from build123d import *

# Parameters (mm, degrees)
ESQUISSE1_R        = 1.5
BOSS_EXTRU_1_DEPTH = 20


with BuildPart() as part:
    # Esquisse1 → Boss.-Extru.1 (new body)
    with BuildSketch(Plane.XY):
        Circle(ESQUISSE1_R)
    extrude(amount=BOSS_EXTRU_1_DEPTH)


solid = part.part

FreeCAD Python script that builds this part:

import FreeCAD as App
import Part
import Sketcher

V = App.Vector

doc = App.newDocument("Part")
params = doc.addObject("Spreadsheet::Sheet", "Params")
for row, (alias, value) in enumerate([
    ("sketch1_diameter", "3 mm"),
    ("pad1_length", "20 mm"),
], start=1):
    params.set(f"A{row}", alias)
    params.set(f"B{row}", "=" + value)
    params.setAlias(f"B{row}", alias)

body = doc.addObject("PartDesign::Body", "Body")

# Sketch on XY plane
sketch1 = doc.addObject("Sketcher::SketchObject", "Sketch")
body.addObject(sketch1)
sketch1.AttachmentSupport = (doc.XY_Plane, [""])
sketch1.MapMode = "FlatFace"
sketch1.addGeometry(Part.Circle(V(0, 0, 0), V(0, 0, 1), 1.5), False)
sketch1.addConstraint(Sketcher.Constraint("Coincident", 0, 3, -1, 1))
sketch1.addConstraint(Sketcher.Constraint("Diameter", 0, 3.0))
sketch1.setExpression("Constraints[1]", "Params.sketch1_diameter")
pad1 = doc.addObject("PartDesign::Pad", "Pad")
body.addObject(pad1)
pad1.Profile = sketch1
pad1.setExpression("Length", "Params.pad1_length")

doc.recompute()
